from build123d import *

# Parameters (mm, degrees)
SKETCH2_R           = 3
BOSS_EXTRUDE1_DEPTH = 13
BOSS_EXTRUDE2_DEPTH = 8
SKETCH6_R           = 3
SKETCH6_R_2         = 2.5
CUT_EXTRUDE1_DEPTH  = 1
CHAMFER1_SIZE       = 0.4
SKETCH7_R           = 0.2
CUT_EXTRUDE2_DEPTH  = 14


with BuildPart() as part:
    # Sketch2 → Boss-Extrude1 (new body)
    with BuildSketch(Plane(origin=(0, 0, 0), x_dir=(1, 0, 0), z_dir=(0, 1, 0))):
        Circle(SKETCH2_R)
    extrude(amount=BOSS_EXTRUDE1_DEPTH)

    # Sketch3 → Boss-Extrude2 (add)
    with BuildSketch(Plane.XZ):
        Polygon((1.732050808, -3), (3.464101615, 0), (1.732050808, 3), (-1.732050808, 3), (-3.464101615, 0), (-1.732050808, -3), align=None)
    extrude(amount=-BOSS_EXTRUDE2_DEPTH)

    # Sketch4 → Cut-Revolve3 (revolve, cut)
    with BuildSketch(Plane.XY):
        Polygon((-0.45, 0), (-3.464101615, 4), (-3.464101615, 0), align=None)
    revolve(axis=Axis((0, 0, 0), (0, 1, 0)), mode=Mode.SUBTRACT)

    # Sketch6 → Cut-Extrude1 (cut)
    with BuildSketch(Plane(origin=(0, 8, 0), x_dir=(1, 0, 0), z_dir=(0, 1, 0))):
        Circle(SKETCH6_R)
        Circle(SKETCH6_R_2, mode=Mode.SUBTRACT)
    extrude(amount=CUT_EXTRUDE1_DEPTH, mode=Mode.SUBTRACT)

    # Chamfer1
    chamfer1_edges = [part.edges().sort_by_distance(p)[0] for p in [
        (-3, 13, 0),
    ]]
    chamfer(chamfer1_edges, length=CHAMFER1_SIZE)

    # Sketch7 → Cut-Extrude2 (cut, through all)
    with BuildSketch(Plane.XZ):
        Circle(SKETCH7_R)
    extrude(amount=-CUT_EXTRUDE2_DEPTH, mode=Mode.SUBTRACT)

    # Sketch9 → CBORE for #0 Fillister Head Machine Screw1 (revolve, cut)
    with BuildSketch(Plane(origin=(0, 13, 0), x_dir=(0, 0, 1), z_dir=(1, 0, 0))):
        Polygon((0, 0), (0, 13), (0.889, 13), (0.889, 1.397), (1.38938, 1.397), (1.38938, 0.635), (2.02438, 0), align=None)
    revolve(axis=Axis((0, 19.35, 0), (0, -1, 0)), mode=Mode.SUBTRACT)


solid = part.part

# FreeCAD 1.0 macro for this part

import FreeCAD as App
import Part
import Sketcher

V = App.Vector
Q = App.Units.Quantity


def edges_at(feature, points):
    """Names of the edges that pass closest to the given points."""
    edges = feature.Shape.Edges
    near = lambda p: min(range(len(edges)), key=lambda i: edges[i].distToShape(Part.Vertex(*p))[0])
    return sorted({f"Edge{near(p) + 1}" for p in points})

doc = App.newDocument("Part")
body = doc.addObject("PartDesign::Body", "Body")

# Sketch on XZ plane
sketch1 = body.newObject("Sketcher::SketchObject", "Sketch")
sketch1.AttachmentSupport = (doc.getObject("XZ_Plane"), [""])
sketch1.MapMode = "FlatFace"
sketch1.addGeometry(Part.Circle(V(0, 0, 0), V(0, 0, 1), 3), False)
sketch1.addConstraint([
    Sketcher.Constraint("Coincident", 0, 3, -1, 1),
    Sketcher.Constraint("Diameter", 0, Q("6 mm")),
])
pad1 = body.newObject("PartDesign::Pad", "Pad")
pad1.Profile = sketch1
pad1.Length = 13
pad1.Reversed = True

# Sketch on XZ plane
sketch2 = body.newObject("Sketcher::SketchObject", "Sketch001")
sketch2.AttachmentSupport = (doc.getObject("XZ_Plane"), [""])
sketch2.MapMode = "FlatFace"
sketch2.addGeometry([
    Part.LineSegment(V(1.7, -3, 0), V(3.5, 0, 0)),  # 0
    Part.LineSegment(V(3.5, 0, 0), V(1.7, 3, 0)),  # 1
    Part.LineSegment(V(1.7, 3, 0), V(-1.7, 3, 0)),  # 2
    Part.LineSegment(V(-1.7, 3, 0), V(-3.5, 0, 0)),  # 3
    Part.LineSegment(V(-3.5, 0, 0), V(-1.7, -3, 0)),  # 4
    Part.LineSegment(V(-1.7, -3, 0), V(1.7, -3, 0)),  # 5
], False)
sketch2.addConstraint([
    Sketcher.Constraint("Coincident", 0, 2, 1, 1),
    Sketcher.Constraint("Coincident", 1, 2, 2, 1),
    Sketcher.Constraint("Coincident", 2, 2, 3, 1),
    Sketcher.Constraint("Coincident", 3, 2, 4, 1),
    Sketcher.Constraint("Coincident", 4, 2, 5, 1),
    Sketcher.Constraint("Coincident", 5, 2, 0, 1),
    Sketcher.Constraint("Horizontal", 2),
    Sketcher.Constraint("Horizontal", 5),
    Sketcher.Constraint("Symmetric", 0, 2, 3, 2, -1, 1),
    Sketcher.Constraint("Symmetric", 1, 2, 4, 2, -1, 1),
    Sketcher.Constraint("PointOnObject", 0, 2, -1),
    Sketcher.Constraint("Parallel", 0, 3),
    Sketcher.Constraint("Vertical", 2, 2, 4, 2),
    Sketcher.Constraint("Angle", 0, Q("60 deg")),
    Sketcher.Constraint("DistanceY", -1, 1, 1, 2, Q("3 mm")),
    Sketcher.Constraint("DistanceX", 2, 2, 2, 1, Q("3.464102 mm")),
])
pad2 = body.newObject("PartDesign::Pad", "Pad001")
pad2.Profile = sketch2
pad2.Length = 8
pad2.Reversed = True

# Sketch on XY plane
sketch3 = body.newObject("Sketcher::SketchObject", "Sketch002")
sketch3.AttachmentSupport = (doc.getObject("XY_Plane"), [""])
sketch3.MapMode = "FlatFace"
sketch3.addGeometry([
    Part.LineSegment(V(-0.5, 0, 0), V(-3.5, 4, 0)),
    Part.LineSegment(V(-3.5, 4, 0), V(-3.5, 0, 0)),
    Part.LineSegment(V(-3.5, 0, 0), V(-0.5, 0, 0)),
], False)
sketch3.addConstraint([
    Sketcher.Constraint("Coincident", 0, 2, 1, 1),
    Sketcher.Constraint("Coincident", 1, 2, 2, 1),
    Sketcher.Constraint("Coincident", 2, 2, 0, 1),
    Sketcher.Constraint("Vertical", 1),
    Sketcher.Constraint("Horizontal", 2),
    Sketcher.Constraint("PointOnObject", 1, 2, -1),
    Sketcher.Constraint("DistanceY", 1, 2, 1, 1, Q("4 mm")),
    Sketcher.Constraint("DistanceX", 2, 2, -1, 1, Q("0.45 mm")),
    Sketcher.Constraint("DistanceX", 2, 1, 2, 2, Q("3.014102 mm")),
])
groove = body.newObject("PartDesign::Groove", "Groove")
groove.Profile = sketch3
groove.ReferenceAxis = (sketch3, ["V_Axis"])
groove.Angle = 360

# Sketch on XZ plane
sketch4 = body.newObject("Sketcher::SketchObject", "Sketch003")
sketch4.AttachmentSupport = (doc.getObject("XZ_Plane"), [""])
sketch4.MapMode = "FlatFace"
sketch4.AttachmentOffset = App.Placement(V(0, 0, -8), App.Rotation())
sketch4.addGeometry([
    Part.Circle(V(0, 0, 0), V(0, 0, 1), 3),
    Part.Circle(V(0, 0, 0), V(0, 0, 1), 2.5),
], False)
sketch4.addConstraint([
    Sketcher.Constraint("Coincident", 0, 3, -1, 1),
    Sketcher.Constraint("Coincident", 1, 3, -1, 1),
    Sketcher.Constraint("Diameter", 0, Q("6 mm")),
    Sketcher.Constraint("Diameter", 1, Q("5 mm")),
])
pocket1 = body.newObject("PartDesign::Pocket", "Pocket")
pocket1.Profile = sketch4
pocket1.Length = 1
doc.recompute()

chamfer = body.newObject("PartDesign::Chamfer", "Chamfer")
chamfer.Base = (pocket1, edges_at(pocket1, [(-3, 13, 0)]))
chamfer.Size = 0.4

# Sketch on XZ plane
sketch5 = body.newObject("Sketcher::SketchObject", "Sketch004")
sketch5.AttachmentSupport = (doc.getObject("XZ_Plane"), [""])
sketch5.MapMode = "FlatFace"
sketch5.addGeometry(Part.Circle(V(0, 0, 0), V(0, 0, 1), 0.2), False)
sketch5.addConstraint([
    Sketcher.Constraint("Coincident", 0, 3, -1, 1),
    Sketcher.Constraint("Diameter", 0, Q("0.4 mm")),
])
pocket2 = body.newObject("PartDesign::Pocket", "Pocket001")
pocket2.Profile = sketch5
pocket2.Type = "ThroughAll"

# Sketch on YZ plane
sketch6 = body.newObject("Sketcher::SketchObject", "Sketch005")
sketch6.AttachmentSupport = (doc.getObject("YZ_Plane"), [""])
sketch6.MapMode = "FlatFace"
sketch6.addGeometry([
    Part.LineSegment(V(0, 0, 0), V(13, 0, 0)),  # 0
    Part.LineSegment(V(13, 0, 0), V(13, 2, 0)),  # 1
    Part.LineSegment(V(13, 2, 0), V(12.4, 1.4, 0)),  # 2
    Part.LineSegment(V(12.4, 1.4, 0), V(11.6, 1.4, 0)),  # 3
    Part.LineSegment(V(11.6, 1.4, 0), V(11.6, 0.9, 0)),  # 4
    Part.LineSegment(V(11.6, 0.9, 0), V(0, 0.9, 0)),  # 5
    Part.LineSegment(V(0, 0.9, 0), V(0, 0, 0)),  # 6
], False)
sketch6.addConstraint([
    Sketcher.Constraint("Coincident", 0, 2, 1, 1),
    Sketcher.Constraint("Coincident", 1, 2, 2, 1),
    Sketcher.Constraint("Coincident", 2, 2, 3, 1),
    Sketcher.Constraint("Coincident", 3, 2, 4, 1),
    Sketcher.Constraint("Coincident", 4, 2, 5, 1),
    Sketcher.Constraint("Coincident", 5, 2, 6, 1),
    Sketcher.Constraint("Coincident", 6, 2, 0, 1),
    Sketcher.Constraint("Horizontal", 0),
    Sketcher.Constraint("Vertical", 1),
    Sketcher.Constraint("Horizontal", 3),
    Sketcher.Constraint("Vertical", 4),
    Sketcher.Constraint("Horizontal", 5),
    Sketcher.Constraint("Vertical", 6),
    Sketcher.Constraint("Coincident", 6, 2, -1, 1),
    Sketcher.Constraint("DistanceX", 0, 1, 0, 2, Q("13 mm")),
    Sketcher.Constraint("Angle", 2, Q("-135 deg")),
    Sketcher.Constraint("DistanceX", 3, 2, 3, 1, Q("0.762 mm")),
    Sketcher.Constraint("DistanceX", 5, 2, 5, 1, Q("11.603 mm")),
    Sketcher.Constraint("DistanceY", 6, 2, 6, 1, Q("0.889 mm")),
    Sketcher.Constraint("DistanceY", 1, 1, 1, 2, Q("2.02438 mm")),
])
groove2 = body.newObject("PartDesign::Groove", "Groove001")
groove2.Profile = sketch6
groove2.ReferenceAxis = (sketch6, ["H_Axis"])
groove2.Angle = 360

doc.recompute()
